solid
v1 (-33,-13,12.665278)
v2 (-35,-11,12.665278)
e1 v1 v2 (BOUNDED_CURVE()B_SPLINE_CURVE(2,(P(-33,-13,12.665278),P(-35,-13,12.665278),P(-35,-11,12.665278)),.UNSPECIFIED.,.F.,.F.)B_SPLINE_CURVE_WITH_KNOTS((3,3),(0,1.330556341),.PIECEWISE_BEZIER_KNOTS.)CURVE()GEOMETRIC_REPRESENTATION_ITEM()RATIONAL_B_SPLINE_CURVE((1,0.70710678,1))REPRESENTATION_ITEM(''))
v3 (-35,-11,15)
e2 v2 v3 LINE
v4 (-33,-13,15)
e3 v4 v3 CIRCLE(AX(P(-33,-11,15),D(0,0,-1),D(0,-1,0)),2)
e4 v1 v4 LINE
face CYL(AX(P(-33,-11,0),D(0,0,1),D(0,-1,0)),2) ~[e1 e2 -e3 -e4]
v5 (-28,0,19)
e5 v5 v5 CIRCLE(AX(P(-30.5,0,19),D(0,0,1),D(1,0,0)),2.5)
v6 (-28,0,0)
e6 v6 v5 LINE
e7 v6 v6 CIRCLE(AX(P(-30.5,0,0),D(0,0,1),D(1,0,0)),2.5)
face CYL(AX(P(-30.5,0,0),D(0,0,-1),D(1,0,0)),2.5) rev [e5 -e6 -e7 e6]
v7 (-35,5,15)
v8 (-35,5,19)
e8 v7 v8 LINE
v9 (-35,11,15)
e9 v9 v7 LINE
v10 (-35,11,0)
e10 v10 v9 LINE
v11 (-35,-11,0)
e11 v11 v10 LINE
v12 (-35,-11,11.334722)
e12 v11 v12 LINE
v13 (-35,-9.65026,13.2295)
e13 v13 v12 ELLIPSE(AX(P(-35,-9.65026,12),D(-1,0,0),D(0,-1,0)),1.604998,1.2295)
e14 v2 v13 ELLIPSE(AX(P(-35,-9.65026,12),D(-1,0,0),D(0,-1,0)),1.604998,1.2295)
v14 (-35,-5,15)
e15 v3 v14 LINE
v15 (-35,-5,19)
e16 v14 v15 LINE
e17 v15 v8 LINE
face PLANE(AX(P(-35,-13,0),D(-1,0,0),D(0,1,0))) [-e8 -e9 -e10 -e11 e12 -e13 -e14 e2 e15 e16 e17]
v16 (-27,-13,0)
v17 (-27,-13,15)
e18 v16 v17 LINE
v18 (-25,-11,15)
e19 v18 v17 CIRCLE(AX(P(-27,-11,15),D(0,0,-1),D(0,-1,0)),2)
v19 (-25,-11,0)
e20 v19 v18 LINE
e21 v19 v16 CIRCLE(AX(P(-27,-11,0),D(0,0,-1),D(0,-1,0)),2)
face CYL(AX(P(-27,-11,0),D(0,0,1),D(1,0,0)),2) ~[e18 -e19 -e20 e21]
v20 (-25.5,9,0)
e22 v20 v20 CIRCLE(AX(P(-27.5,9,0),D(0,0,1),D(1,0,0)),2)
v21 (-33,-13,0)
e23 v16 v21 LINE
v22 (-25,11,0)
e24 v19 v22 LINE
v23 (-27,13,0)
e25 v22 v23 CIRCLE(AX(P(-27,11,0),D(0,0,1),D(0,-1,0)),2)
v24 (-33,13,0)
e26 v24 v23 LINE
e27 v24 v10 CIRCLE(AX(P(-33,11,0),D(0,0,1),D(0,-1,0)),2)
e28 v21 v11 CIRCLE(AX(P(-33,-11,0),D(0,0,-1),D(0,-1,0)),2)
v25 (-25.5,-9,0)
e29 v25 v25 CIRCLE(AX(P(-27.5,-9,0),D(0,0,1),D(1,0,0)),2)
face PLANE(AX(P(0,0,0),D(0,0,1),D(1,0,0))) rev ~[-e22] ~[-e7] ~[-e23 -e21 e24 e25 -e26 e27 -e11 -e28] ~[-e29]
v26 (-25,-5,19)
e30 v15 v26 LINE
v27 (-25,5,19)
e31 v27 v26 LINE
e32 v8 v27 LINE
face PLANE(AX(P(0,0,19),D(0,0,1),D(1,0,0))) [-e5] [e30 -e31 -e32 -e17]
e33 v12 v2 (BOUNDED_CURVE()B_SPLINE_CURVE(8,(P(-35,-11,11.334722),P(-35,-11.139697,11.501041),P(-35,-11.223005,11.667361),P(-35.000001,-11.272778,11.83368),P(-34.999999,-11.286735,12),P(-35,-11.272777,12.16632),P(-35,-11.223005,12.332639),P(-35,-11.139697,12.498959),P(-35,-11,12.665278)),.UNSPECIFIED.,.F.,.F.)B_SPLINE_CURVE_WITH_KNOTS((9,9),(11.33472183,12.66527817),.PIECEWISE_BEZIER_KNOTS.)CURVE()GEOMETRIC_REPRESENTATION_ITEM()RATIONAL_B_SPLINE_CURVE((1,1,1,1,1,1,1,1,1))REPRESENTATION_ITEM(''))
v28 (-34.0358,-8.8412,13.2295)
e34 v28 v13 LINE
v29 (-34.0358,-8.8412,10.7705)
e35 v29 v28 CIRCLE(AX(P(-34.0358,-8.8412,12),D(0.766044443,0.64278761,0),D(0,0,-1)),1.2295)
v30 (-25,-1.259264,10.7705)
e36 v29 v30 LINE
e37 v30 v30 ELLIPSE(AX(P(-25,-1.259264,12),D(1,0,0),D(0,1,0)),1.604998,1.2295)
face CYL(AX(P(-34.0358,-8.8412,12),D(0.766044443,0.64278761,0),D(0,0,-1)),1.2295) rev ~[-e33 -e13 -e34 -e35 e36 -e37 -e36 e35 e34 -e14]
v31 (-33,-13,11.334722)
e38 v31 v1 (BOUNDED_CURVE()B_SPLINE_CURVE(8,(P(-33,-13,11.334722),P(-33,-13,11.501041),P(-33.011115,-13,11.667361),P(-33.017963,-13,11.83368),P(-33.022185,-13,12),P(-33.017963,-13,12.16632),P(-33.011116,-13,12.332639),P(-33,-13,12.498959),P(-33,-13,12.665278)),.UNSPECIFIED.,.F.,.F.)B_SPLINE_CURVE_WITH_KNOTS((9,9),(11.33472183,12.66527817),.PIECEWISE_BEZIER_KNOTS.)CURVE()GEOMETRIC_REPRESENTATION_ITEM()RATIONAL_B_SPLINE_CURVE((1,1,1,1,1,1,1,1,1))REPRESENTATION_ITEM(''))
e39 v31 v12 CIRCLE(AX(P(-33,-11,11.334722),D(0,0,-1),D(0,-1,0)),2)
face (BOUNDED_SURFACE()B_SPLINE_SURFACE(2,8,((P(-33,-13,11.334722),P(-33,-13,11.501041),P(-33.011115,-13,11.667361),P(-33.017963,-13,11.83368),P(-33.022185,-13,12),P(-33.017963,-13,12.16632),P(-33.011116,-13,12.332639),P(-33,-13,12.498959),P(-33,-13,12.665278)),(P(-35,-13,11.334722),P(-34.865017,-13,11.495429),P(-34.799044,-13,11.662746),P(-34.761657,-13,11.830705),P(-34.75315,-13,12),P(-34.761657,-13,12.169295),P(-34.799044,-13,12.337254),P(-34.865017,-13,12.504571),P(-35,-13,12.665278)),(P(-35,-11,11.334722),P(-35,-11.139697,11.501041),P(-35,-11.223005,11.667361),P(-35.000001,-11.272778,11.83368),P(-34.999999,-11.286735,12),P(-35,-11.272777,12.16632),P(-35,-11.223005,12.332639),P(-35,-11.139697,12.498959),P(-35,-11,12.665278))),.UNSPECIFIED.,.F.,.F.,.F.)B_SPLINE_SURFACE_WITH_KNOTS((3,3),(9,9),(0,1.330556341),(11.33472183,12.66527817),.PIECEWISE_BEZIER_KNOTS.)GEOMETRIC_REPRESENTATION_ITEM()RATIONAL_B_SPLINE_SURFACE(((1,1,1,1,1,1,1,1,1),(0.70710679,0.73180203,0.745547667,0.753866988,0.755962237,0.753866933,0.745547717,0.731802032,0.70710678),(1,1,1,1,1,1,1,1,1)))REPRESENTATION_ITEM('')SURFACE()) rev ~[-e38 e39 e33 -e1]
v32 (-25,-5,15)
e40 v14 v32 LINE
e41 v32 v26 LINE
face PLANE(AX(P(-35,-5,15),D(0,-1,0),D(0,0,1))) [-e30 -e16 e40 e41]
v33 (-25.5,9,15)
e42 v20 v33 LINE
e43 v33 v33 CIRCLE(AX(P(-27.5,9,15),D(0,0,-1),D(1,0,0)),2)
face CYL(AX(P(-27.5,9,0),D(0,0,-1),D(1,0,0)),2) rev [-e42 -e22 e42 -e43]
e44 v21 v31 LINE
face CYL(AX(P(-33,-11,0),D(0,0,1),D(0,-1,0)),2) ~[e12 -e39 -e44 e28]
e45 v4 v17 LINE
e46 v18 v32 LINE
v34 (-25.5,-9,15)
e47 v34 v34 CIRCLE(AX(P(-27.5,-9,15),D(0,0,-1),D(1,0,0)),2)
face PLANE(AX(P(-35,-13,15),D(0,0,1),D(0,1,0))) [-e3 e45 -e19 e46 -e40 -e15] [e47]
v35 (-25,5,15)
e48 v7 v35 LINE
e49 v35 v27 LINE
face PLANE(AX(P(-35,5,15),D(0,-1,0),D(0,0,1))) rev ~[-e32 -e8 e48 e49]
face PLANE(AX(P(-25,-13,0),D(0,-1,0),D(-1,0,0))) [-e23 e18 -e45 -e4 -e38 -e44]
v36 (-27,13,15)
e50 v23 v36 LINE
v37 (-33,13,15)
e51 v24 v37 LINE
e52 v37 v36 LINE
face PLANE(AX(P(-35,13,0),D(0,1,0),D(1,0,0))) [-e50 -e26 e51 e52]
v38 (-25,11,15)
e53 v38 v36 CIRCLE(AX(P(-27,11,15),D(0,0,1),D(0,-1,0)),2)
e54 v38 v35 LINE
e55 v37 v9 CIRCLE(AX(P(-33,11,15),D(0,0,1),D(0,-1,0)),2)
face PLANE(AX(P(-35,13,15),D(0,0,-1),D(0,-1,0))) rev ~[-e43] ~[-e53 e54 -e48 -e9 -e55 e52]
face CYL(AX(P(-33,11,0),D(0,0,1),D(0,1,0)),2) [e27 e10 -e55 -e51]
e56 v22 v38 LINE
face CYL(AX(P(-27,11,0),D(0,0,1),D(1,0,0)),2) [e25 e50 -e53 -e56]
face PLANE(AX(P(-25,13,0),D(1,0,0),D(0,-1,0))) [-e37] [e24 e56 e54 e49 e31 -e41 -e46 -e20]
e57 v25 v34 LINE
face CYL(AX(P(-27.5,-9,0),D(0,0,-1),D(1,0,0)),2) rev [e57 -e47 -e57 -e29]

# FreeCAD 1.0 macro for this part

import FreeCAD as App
import Part
import Sketcher

V = App.Vector
Q = App.Units.Quantity


def edges_at(feature, points):
    """Names of the edges that pass closest to the given points."""
    edges = feature.Shape.Edges
    near = lambda p: min(range(len(edges)), key=lambda i: edges[i].distToShape(Part.Vertex(*p))[0])
    return sorted({f"Edge{near(p) + 1}" for p in points})

doc = App.newDocument("Part")
body = doc.addObject("PartDesign::Body", "Body")

# Sketch on XY plane
sketch1 = doc.addObject("Sketcher::SketchObject", "Sketch")
body.addObject(sketch1)
sketch1.AttachmentSupport = (doc.XY_Plane, [""])
sketch1.MapMode = "FlatFace"
sketch1.addGeometry([
    Part.LineSegment(V(-25, -13, 0), V(-25, 13, 0)),  # 0
    Part.LineSegment(V(-25, 13, 0), V(-35, 13, 0)),  # 1
    Part.LineSegment(V(-35, 13, 0), V(-35, -13, 0)),  # 2
    Part.LineSegment(V(-35, -13, 0), V(-25, -13, 0)),  # 3
    Part.Circle(V(-27.5, -9, 0), V(0, 0, 1), 2),  # 4
    Part.Circle(V(-30.5, 0, 0), V(0, 0, 1), 2.5),  # 5
    Part.Circle(V(-27.5, 9, 0), V(0, 0, 1), 2),  # 6
], False)
sketch1.addConstraint([
    Sketcher.Constraint("Coincident", 0, 2, 1, 1),
    Sketcher.Constraint("Coincident", 1, 2, 2, 1),
    Sketcher.Constraint("Coincident", 2, 2, 3, 1),
    Sketcher.Constraint("Coincident", 3, 2, 0, 1),
    Sketcher.Constraint("Vertical", 0),
    Sketcher.Constraint("Horizontal", 1),
    Sketcher.Constraint("Vertical", 2),
    Sketcher.Constraint("Horizontal", 3),
    Sketcher.Constraint("Equal", 4, 6),
    Sketcher.Constraint("Symmetric", 4, 3, 6, 3, -1),
    Sketcher.Constraint("PointOnObject", 5, 3, -1),
    Sketcher.Constraint("Diameter", 5, Q("5 mm")),
    Sketcher.Constraint("DistanceY", 0, 1, 0, 2, Q("26 mm")),
    Sketcher.Constraint("Diameter", 4, Q("4 mm")),
    Sketcher.Constraint("DistanceX", 6, 3, 0, 2, Q("2.5 mm")),
    Sketcher.Constraint("DistanceX", 1, 2, 1, 1, Q("10 mm")),
    Sketcher.Constraint("DistanceY", 4, 3, -1, 1, Q("9 mm")),
    Sketcher.Constraint("DistanceX", 0, 2, -1, 1, Q("25 mm")),
    Sketcher.Constraint("DistanceY", -1, 1, 0, 2, Q("13 mm")),
    Sketcher.Constraint("DistanceX", 5, 3, 4, 3, Q("3 mm")),
])
pad1 = doc.addObject("PartDesign::Pad", "Pad")
body.addObject(pad1)
pad1.Profile = sketch1
pad1.Length = 19

# Sketch on an angled plane
sketch2 = doc.addObject("Sketcher::SketchObject", "Sketch001")
body.addObject(sketch2)
sketch2.Placement = App.Placement(V(-24.326468, -20.412331, 0), App.Rotation(V(0.64278761, -0.766044443, 0), V(0, 0, 1), V(-0.766044443, -0.64278761, 0), "ZXY"))
sketch2.addGeometry(Part.Circle(V(-15.1, 12, 0), V(0, 0, 1), 1.2), False)
sketch2.addConstraint([
    Sketcher.Constraint("Diameter", 0, Q("2.459 mm")),
    Sketcher.Constraint("DistanceY", -1, 1, 0, 3, Q("12 mm")),
    Sketcher.Constraint("DistanceX", 0, 3, -1, 1, Q("15.105 mm")),
])
doc.recompute()
hole = doc.addObject("PartDesign::Hole", "Hole")
body.addObject(hole)
hole.Profile = sketch2
hole.ThreadType = "None"
hole.Diameter = 2.459
hole.DepthType = "ThroughAll"

# Sketch on an angled plane
sketch3 = doc.addObject("Sketcher::SketchObject", "Sketch002")
body.addObject(sketch3)
sketch3.Placement = App.Placement(V(-24.326468, -20.412331, 0), App.Rotation(V(-0.64278761, 0.766044443, 0), V(0, 0, 1), V(0.766044443, 0.64278761, 0), "ZXY"))
sketch3.addGeometry(Part.Circle(V(15.1, 12, 0), V(0, 0, 1), 1.2), False)
sketch3.addConstraint([
    Sketcher.Constraint("Diameter", 0, Q("2.459 mm")),
    Sketcher.Constraint("DistanceY", -1, 1, 0, 3, Q("12 mm")),
    Sketcher.Constraint("DistanceX", -1, 1, 0, 3, Q("15.105 mm")),
])
doc.recompute()
hole2 = doc.addObject("PartDesign::Hole", "Hole001")
body.addObject(hole2)
hole2.Profile = sketch3
hole2.ThreadType = "None"
hole2.Diameter = 2.459
hole2.DepthType = "ThroughAll"

# Sketch on YZ plane
sketch4 = doc.addObject("Sketcher::SketchObject", "Sketch003")
body.addObject(sketch4)
sketch4.AttachmentSupport = (doc.YZ_Plane, [""])
sketch4.MapMode = "FlatFace"
sketch4.AttachmentOffset = App.Placement(V(0, 0, -35), App.Rotation())
sketch4.addGeometry([
    Part.LineSegment(V(5, 19, 0), V(13, 19, 0)),  # 0
    Part.LineSegment(V(13, 19, 0), V(13, 15, 0)),  # 1
    Part.LineSegment(V(13, 15, 0), V(5, 15, 0)),  # 2
    Part.LineSegment(V(5, 15, 0), V(5, 19, 0)),  # 3
    Part.LineSegment(V(-13, 15, 0), V(-13, 19, 0)),  # 4
    Part.LineSegment(V(-13, 19, 0), V(-5, 19, 0)),  # 5
    Part.LineSegment(V(-5, 19, 0), V(-5, 15, 0)),  # 6
    Part.LineSegment(V(-5, 15, 0), V(-13, 15, 0)),  # 7
], False)
sketch4.addConstraint([
    Sketcher.Constraint("Coincident", 0, 2, 1, 1),
    Sketcher.Constraint("Coincident", 1, 2, 2, 1),
    Sketcher.Constraint("Coincident", 2, 2, 3, 1),
    Sketcher.Constraint("Coincident", 3, 2, 0, 1),
    Sketcher.Constraint("Coincident", 4, 2, 5, 1),
    Sketcher.Constraint("Coincident", 5, 2, 6, 1),
    Sketcher.Constraint("Coincident", 6, 2, 7, 1),
    Sketcher.Constraint("Coincident", 7, 2, 4, 1),
    Sketcher.Constraint("Horizontal", 0),
    Sketcher.Constraint("Vertical", 1),
    Sketcher.Constraint("Horizontal", 2),
    Sketcher.Constraint("Vertical", 3),
    Sketcher.Constraint("Vertical", 4),
    Sketcher.Constraint("Horizontal", 5),
    Sketcher.Constraint("Vertical", 6),
    Sketcher.Constraint("Horizontal", 7),
    Sketcher.Constraint("Symmetric", 0, 2, 4, 2, -2),
    Sketcher.Constraint("Symmetric", 2, 2, 6, 2, -2),
    Sketcher.Constraint("DistanceX", 0, 1, 0, 2, Q("8 mm")),
    Sketcher.Constraint("DistanceY", 1, 2, 1, 1, Q("4 mm")),
    Sketcher.Constraint("DistanceX", -1, 1, 0, 2, Q("13 mm")),
    Sketcher.Constraint("DistanceY", -1, 1, 0, 2, Q("19 mm")),
])
pocket1 = doc.addObject("PartDesign::Pocket", "Pocket")
body.addObject(pocket1)
pocket1.Profile = sketch4
pocket1.Length = 10
pocket1.Reversed = True
doc.recompute()

fillet = doc.addObject("PartDesign::Fillet", "Fillet")
body.addObject(fillet)
fillet.Base = (pocket1, edges_at(pocket1, [
    (-25, 13, 7.5),
    (-35, 13, 7.5),
    (-35, -13, 7.5),
    (-25, -13, 7.5),
]))
fillet.Radius = 2

doc.recompute()
